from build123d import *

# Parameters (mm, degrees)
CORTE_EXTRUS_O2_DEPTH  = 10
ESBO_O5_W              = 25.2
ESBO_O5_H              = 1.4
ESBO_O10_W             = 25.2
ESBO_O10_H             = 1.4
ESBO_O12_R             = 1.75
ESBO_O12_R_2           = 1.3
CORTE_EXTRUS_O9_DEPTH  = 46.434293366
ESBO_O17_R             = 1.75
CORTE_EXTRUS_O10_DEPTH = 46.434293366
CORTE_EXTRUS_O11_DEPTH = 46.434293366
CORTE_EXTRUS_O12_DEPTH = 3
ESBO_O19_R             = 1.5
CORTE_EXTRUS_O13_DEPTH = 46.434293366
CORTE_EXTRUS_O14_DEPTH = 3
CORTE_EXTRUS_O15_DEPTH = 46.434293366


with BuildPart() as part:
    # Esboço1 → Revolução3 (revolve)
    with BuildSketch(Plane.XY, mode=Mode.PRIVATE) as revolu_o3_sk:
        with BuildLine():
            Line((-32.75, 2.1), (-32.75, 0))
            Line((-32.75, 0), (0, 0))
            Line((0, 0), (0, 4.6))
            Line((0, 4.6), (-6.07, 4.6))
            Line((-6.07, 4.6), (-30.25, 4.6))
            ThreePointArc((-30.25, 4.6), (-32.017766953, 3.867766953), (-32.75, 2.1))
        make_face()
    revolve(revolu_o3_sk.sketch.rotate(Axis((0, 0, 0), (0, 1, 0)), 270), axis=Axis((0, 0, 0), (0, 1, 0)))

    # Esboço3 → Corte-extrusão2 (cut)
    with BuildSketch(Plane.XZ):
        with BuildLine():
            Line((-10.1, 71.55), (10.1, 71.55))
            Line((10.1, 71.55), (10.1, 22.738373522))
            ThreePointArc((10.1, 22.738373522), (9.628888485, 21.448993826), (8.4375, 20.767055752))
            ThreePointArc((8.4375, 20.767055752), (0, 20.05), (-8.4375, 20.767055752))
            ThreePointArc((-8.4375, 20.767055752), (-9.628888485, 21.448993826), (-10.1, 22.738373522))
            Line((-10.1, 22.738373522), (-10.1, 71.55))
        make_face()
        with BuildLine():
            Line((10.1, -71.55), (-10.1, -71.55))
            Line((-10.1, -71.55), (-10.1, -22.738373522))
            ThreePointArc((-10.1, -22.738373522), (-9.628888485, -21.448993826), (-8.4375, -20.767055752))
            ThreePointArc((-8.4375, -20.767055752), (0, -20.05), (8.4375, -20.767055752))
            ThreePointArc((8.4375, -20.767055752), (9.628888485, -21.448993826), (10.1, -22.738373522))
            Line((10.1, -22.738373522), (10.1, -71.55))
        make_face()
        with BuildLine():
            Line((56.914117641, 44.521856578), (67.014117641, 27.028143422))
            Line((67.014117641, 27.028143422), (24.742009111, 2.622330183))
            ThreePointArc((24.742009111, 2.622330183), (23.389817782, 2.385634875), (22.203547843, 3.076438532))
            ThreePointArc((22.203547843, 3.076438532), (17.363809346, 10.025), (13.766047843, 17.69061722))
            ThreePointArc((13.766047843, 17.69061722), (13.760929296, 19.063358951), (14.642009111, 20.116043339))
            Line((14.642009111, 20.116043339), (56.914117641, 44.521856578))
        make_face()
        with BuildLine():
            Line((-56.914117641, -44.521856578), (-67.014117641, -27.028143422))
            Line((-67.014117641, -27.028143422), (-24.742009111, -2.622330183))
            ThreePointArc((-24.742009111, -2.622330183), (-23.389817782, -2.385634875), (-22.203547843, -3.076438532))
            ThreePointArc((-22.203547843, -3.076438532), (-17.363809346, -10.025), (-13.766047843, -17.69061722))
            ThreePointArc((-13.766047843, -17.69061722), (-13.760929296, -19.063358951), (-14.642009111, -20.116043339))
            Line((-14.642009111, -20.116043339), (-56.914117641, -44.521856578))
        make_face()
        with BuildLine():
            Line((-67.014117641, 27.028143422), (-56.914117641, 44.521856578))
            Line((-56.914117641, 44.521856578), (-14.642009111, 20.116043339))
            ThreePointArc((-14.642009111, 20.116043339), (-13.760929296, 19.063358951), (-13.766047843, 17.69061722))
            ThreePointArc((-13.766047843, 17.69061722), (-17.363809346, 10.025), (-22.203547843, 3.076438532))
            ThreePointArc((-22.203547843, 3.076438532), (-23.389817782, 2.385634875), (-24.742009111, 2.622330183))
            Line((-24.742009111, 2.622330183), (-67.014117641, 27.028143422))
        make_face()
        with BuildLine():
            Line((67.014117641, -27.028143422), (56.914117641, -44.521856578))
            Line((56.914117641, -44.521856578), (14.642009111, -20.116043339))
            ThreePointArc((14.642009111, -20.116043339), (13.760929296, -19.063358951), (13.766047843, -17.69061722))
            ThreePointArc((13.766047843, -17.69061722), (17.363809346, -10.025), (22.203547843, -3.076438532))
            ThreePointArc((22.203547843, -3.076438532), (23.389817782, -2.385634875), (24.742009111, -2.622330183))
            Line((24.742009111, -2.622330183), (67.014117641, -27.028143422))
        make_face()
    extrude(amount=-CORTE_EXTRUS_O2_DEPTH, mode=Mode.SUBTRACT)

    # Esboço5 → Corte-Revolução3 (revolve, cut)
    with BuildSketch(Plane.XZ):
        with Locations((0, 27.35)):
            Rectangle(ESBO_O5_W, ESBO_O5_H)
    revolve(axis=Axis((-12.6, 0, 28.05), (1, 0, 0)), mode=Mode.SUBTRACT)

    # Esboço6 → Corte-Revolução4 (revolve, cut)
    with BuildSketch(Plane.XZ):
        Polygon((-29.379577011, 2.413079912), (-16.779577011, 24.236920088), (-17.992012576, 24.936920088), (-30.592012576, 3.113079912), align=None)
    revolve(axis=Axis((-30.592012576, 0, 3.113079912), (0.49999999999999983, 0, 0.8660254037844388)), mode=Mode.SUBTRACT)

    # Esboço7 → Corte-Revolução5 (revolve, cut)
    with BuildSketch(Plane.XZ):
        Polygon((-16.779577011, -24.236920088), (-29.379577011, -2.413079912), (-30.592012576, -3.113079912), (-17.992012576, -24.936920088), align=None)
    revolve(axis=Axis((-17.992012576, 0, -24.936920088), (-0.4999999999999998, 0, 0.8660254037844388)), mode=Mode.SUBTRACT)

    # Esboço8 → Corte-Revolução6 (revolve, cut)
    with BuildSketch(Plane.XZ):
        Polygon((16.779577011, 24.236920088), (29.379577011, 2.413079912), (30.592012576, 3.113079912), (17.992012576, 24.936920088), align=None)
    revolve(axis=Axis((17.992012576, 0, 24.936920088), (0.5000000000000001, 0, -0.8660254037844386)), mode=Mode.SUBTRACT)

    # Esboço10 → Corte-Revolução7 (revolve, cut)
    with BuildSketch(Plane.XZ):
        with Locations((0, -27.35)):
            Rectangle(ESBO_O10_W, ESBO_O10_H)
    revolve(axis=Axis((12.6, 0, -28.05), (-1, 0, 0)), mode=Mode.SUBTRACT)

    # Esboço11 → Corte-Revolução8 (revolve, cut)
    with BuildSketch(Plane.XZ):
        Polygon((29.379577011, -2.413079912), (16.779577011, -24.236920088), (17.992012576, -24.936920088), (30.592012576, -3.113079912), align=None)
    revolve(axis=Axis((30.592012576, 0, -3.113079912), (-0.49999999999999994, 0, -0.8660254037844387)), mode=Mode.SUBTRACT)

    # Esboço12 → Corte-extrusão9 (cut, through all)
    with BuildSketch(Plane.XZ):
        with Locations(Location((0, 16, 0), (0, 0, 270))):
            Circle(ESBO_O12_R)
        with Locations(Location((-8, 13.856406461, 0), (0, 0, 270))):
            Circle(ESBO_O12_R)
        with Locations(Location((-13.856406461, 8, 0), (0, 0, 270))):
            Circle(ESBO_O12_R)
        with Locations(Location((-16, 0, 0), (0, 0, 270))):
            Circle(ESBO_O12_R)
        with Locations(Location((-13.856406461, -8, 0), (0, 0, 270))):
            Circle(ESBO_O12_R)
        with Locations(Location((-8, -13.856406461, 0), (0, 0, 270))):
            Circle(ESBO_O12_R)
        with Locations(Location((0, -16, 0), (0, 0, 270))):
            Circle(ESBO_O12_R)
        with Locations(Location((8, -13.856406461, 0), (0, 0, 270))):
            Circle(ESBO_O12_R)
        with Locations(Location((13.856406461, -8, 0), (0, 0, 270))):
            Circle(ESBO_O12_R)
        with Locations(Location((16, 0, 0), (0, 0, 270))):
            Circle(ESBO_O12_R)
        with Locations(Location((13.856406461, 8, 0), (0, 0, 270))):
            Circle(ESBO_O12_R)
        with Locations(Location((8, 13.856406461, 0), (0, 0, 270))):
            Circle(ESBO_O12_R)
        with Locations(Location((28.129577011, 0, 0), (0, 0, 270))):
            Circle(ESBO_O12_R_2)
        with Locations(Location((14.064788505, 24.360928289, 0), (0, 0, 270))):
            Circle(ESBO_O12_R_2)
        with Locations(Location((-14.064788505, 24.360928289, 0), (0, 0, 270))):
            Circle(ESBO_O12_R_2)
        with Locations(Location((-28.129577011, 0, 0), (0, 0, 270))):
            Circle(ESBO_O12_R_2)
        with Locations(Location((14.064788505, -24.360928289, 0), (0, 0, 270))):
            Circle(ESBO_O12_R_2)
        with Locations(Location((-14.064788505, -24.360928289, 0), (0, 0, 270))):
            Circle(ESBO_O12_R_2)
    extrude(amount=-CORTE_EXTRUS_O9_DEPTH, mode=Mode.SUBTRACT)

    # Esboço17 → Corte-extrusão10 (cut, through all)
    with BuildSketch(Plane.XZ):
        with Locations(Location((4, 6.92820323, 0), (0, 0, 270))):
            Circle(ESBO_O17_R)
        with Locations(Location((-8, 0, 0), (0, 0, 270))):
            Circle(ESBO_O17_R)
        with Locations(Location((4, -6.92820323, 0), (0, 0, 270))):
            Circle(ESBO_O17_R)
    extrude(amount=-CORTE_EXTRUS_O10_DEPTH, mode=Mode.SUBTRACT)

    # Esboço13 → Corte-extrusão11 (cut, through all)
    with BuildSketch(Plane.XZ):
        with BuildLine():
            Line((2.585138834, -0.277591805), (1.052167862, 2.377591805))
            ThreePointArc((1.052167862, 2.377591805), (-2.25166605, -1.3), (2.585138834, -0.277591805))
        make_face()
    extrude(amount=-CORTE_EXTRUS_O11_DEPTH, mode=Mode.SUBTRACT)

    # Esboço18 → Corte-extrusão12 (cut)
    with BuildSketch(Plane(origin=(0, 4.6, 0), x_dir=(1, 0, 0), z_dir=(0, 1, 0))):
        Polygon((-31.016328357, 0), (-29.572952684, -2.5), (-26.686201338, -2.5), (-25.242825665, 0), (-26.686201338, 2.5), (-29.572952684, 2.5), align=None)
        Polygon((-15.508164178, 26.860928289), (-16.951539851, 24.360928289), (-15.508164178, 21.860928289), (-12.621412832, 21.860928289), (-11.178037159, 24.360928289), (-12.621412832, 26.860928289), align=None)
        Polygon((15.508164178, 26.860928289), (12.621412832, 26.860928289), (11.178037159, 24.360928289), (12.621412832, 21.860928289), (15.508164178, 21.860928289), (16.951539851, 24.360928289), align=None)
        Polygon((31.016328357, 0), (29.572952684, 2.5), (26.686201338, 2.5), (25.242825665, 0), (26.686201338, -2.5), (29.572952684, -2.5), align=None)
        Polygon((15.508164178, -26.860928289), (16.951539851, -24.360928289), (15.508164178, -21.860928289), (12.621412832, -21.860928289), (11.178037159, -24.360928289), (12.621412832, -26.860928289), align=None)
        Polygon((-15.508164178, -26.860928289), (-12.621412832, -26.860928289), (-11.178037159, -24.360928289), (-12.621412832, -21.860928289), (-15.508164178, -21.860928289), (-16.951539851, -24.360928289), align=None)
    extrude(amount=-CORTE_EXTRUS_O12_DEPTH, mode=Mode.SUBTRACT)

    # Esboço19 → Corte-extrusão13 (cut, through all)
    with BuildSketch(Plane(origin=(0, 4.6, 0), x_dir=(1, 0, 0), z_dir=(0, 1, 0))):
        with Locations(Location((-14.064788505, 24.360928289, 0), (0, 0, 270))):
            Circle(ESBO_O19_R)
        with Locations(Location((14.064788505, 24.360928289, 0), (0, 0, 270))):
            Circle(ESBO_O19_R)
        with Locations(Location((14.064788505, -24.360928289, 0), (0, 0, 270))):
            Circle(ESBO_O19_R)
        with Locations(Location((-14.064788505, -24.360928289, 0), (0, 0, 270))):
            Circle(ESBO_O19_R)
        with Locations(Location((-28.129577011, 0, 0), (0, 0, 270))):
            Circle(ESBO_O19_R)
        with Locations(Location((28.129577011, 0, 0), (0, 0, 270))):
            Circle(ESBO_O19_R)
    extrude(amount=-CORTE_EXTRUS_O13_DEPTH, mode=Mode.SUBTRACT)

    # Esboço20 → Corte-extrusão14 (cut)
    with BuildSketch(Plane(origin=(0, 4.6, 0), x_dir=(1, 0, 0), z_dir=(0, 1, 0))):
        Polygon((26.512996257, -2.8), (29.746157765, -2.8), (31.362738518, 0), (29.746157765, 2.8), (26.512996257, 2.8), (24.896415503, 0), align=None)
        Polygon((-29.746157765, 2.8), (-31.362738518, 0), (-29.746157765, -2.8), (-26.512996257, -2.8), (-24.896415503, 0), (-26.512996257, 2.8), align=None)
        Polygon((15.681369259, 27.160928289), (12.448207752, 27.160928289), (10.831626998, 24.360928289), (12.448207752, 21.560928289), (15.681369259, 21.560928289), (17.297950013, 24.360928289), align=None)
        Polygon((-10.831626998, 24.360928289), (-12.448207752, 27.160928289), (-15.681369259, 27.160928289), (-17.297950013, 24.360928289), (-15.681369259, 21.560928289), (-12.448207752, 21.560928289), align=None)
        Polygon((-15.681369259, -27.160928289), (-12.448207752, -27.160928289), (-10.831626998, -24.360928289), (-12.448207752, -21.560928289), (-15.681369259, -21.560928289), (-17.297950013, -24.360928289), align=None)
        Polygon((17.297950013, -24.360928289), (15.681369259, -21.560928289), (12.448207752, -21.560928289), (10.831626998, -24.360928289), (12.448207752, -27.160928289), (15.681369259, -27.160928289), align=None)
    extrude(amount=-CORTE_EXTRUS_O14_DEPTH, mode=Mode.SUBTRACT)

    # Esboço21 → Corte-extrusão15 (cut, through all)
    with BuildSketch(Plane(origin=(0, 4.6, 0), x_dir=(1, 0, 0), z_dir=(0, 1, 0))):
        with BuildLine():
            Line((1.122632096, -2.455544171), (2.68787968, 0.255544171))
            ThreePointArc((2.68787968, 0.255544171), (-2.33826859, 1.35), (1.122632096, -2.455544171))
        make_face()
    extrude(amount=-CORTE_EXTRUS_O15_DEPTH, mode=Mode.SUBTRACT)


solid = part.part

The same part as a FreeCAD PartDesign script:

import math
import FreeCAD as App
import Part
import Sketcher

V = App.Vector
Q = App.Units.Quantity


def add_polygon(sketch, points):
    """Adds a closed chain of lines whose ends are joined by coincident constraints."""
    first, n = sketch.GeometryCount, len(points)
    for a, b in zip(points, points[1:] + points[:1]):
        sketch.addGeometry(Part.LineSegment(App.Vector(*a, 0), App.Vector(*b, 0)), False)
    for i in range(n):
        sketch.addConstraint(Sketcher.Constraint("Coincident", first + i, 2, first + (i + 1) % n, 1))

doc = App.newDocument("Part")
body = doc.addObject("PartDesign::Body", "Body")

# Sketch on XY plane
sketch1 = body.newObject("Sketcher::SketchObject", "Sketch")
sketch1.AttachmentSupport = (doc.getObject("XY_Plane"), [""])
sketch1.MapMode = "FlatFace"
sketch1.addGeometry([
    Part.LineSegment(V(-32.8, 2.1, 0), V(-32.8, 0, 0)),  # 0
    Part.LineSegment(V(-32.8, 0, 0), V(0, 0, 0)),  # 1
    Part.LineSegment(V(0, 0, 0), V(0, 4.6, 0)),  # 2
    Part.LineSegment(V(0, 4.6, 0), V(-30.2, 4.6, 0)),  # 3
    Part.ArcOfCircle(Part.Circle(V(-30.2, 2.1, 0), V(0, 0, 1), 2.5), math.radians(90), math.radians(180)),  # 4
], False)
sketch1.addConstraint([
    Sketcher.Constraint("Coincident", 0, 2, 1, 1),
    Sketcher.Constraint("Coincident", 1, 2, 2, 1),
    Sketcher.Constraint("Coincident", 2, 2, 3, 1),
    Sketcher.Constraint("Tangent", 3, 2, 4, 1),
    Sketcher.Constraint("Tangent", 4, 2, 0, 1),
    Sketcher.Constraint("Vertical", 0),
    Sketcher.Constraint("Horizontal", 1),
    Sketcher.Constraint("Vertical", 2),
    Sketcher.Constraint("Horizontal", 3),
    Sketcher.Constraint("Coincident", 1, 2, -1, 1),
    Sketcher.Constraint("Radius", 4, Q("2.5 mm")),
    Sketcher.Constraint("DistanceY", 0, 2, 0, 1, Q("2.1 mm")),
    Sketcher.Constraint("DistanceX", 1, 1, 1, 2, Q("32.75 mm")),
])
revolution = body.newObject("PartDesign::Revolution", "Revolution")
revolution.Profile = sketch1
revolution.ReferenceAxis = (sketch1, ["V_Axis"])
revolution.Angle = 360

# Sketch on XZ plane
sketch2 = body.newObject("Sketcher::SketchObject", "Sketch001")
sketch2.AttachmentSupport = (doc.getObject("XZ_Plane"), [""])
sketch2.MapMode = "FlatFace"
sketch2.addGeometry([
    Part.LineSegment(V(10.1, 71.5, 0), V(-10.1, 71.5, 0)),  # 0
    Part.LineSegment(V(-10.1, 71.5, 0), V(-10.1, 22.7, 0)),  # 1
    Part.ArcOfCircle(Part.Circle(V(-8.1, 22.7, 0), V(0, 0, 1), 2), math.radians(180), math.radians(260)),  # 2
    Part.ArcOfCircle(Part.Circle(V(0, 70.1, 0), V(0, 0, 1), 50), math.radians(-99.72), math.radians(-80.28)),  # 3
    Part.ArcOfCircle(Part.Circle(V(8.1, 22.7, 0), V(0, 0, 1), 2), math.radians(-80), math.radians(0)),  # 4
    Part.LineSegment(V(10.1, 22.7, 0), V(10.1, 71.5, 0)),  # 5
    Part.LineSegment(V(-10.1, -71.5, 0), V(10.1, -71.5, 0)),  # 6
    Part.LineSegment(V(10.1, -71.5, 0), V(10.1, -22.7, 0)),  # 7
    Part.ArcOfCircle(Part.Circle(V(8.1, -22.7, 0), V(0, 0, 1), 2), math.radians(0), math.radians(80)),  # 8
    Part.ArcOfCircle(Part.Circle(V(0, -70.1, 0), V(0, 0, 1), 50), math.radians(80.28), math.radians(99.72)),  # 9
    Part.ArcOfCircle(Part.Circle(V(-8.1, -22.7, 0), V(0, 0, 1), 2), math.radians(100), math.radians(180)),  # 10
    Part.LineSegment(V(-10.1, -22.7, 0), V(-10.1, -71.5, 0)),  # 11
    Part.LineSegment(V(67, 27, 0), V(56.9, 44.5, 0)),  # 12
    Part.LineSegment(V(56.9, 44.5, 0), V(14.6, 20.1, 0)),  # 13
    Part.ArcOfCircle(Part.Circle(V(15.6, 18.4, 0), V(0, 0, 1), 2), math.radians(120), math.radians(200)),  # 14
    Part.ArcOfCircle(Part.Circle(V(60.7, 35, 0), V(0, 0, 1), 50), math.radians(-159.72), math.radians(-140.28)),  # 15
    Part.ArcOfCircle(Part.Circle(V(23.7, 4.4, 0), V(0, 0, 1), 2), math.radians(-140), math.radians(-60)),  # 16
    Part.LineSegment(V(24.7, 2.6, 0), V(67, 27, 0)),  # 17
    Part.LineSegment(V(-67, -27, 0), V(-56.9, -44.5, 0)),  # 18
    Part.LineSegment(V(-56.9, -44.5, 0), V(-14.6, -20.1, 0)),  # 19
    Part.ArcOfCircle(Part.Circle(V(-15.6, -18.4, 0), V(0, 0, 1), 2), math.radians(-60), math.radians(20)),  # 20
    Part.ArcOfCircle(Part.Circle(V(-60.7, -35, 0), V(0, 0, 1), 50), math.radians(20.28), math.radians(39.72)),  # 21
    Part.ArcOfCircle(Part.Circle(V(-23.7, -4.4, 0), V(0, 0, 1), 2), math.radians(40), math.radians(120)),  # 22
    Part.LineSegment(V(-24.7, -2.6, 0), V(-67, -27, 0)),  # 23
    Part.LineSegment(V(-56.9, 44.5, 0), V(-67, 27, 0)),  # 24
    Part.LineSegment(V(-67, 27, 0), V(-24.7, 2.6, 0)),  # 25
    Part.ArcOfCircle(Part.Circle(V(-23.7, 4.4, 0), V(0, 0, 1), 2), math.radians(-120), math.radians(-40)),  # 26
    Part.ArcOfCircle(Part.Circle(V(-60.7, 35, 0), V(0, 0, 1), 50), math.radians(-39.72), math.radians(-20.28)),  # 27
    Part.ArcOfCircle(Part.Circle(V(-15.6, 18.4, 0), V(0, 0, 1), 2), math.radians(-20), math.radians(60)),  # 28
    Part.LineSegment(V(-14.6, 20.1, 0), V(-56.9, 44.5, 0)),  # 29
    Part.LineSegment(V(56.9, -44.5, 0), V(67, -27, 0)),  # 30
    Part.LineSegment(V(67, -27, 0), V(24.7, -2.6, 0)),  # 31
    Part.ArcOfCircle(Part.Circle(V(23.7, -4.4, 0), V(0, 0, 1), 2), math.radians(60), math.radians(140)),  # 32
    Part.ArcOfCircle(Part.Circle(V(60.7, -35, 0), V(0, 0, 1), 50), math.radians(140.28), math.radians(159.72)),  # 33
    Part.ArcOfCircle(Part.Circle(V(15.6, -18.4, 0), V(0, 0, 1), 2), math.radians(160), math.radians(240)),  # 34
    Part.LineSegment(V(14.6, -20.1, 0), V(56.9, -44.5, 0)),  # 35
], False)
sketch2.addConstraint([
    Sketcher.Constraint("Coincident", 0, 2, 1, 1),
    Sketcher.Constraint("Tangent", 1, 2, 2, 1),
    Sketcher.Constraint("Tangent", 2, 2, 3, 1),
    Sketcher.Constraint("Tangent", 3, 2, 4, 1),
    Sketcher.Constraint("Tangent", 4, 2, 5, 1),
    Sketcher.Constraint("Coincident", 5, 2, 0, 1),
    Sketcher.Constraint("Coincident", 6, 2, 7, 1),
    Sketcher.Constraint("Tangent", 7, 2, 8, 1),
    Sketcher.Constraint("Tangent", 8, 2, 9, 1),
    Sketcher.Constraint("Tangent", 9, 2, 10, 1),
    Sketcher.Constraint("Tangent", 10, 2, 11, 1),
    Sketcher.Constraint("Coincident", 11, 2, 6, 1),
    Sketcher.Constraint("Coincident", 12, 2, 13, 1),
    Sketcher.Constraint("Tangent", 13, 2, 14, 1),
    Sketcher.Constraint("Tangent", 14, 2, 15, 1),
    Sketcher.Constraint("Tangent", 15, 2, 16, 1),
    Sketcher.Constraint("Tangent", 16, 2, 17, 1),
    Sketcher.Constraint("Coincident", 17, 2, 12, 1),
    Sketcher.Constraint("Coincident", 18, 2, 19, 1),
    Sketcher.Constraint("Tangent", 19, 2, 20, 1),
    Sketcher.Constraint("Tangent", 20, 2, 21, 1),
    Sketcher.Constraint("Tangent", 21, 2, 22, 1),
    Sketcher.Constraint("Tangent", 22, 2, 23, 1),
    Sketcher.Constraint("Coincident", 23, 2, 18, 1),
    Sketcher.Constraint("Coincident", 24, 2, 25, 1),
    Sketcher.Constraint("Tangent", 25, 2, 26, 1),
    Sketcher.Constraint("Tangent", 26, 2, 27, 1),
    Sketcher.Constraint("Tangent", 27, 2, 28, 1),
    Sketcher.Constraint("Tangent", 28, 2, 29, 1),
    Sketcher.Constraint("Coincident", 29, 2, 24, 1),
    Sketcher.Constraint("Coincident", 30, 2, 31, 1),
    Sketcher.Constraint("Tangent", 31, 2, 32, 1),
    Sketcher.Constraint("Tangent", 32, 2, 33, 1),
    Sketcher.Constraint("Tangent", 33, 2, 34, 1),
    Sketcher.Constraint("Tangent", 34, 2, 35, 1),
    Sketcher.Constraint("Coincident", 35, 2, 30, 1),
    Sketcher.Constraint("Horizontal", 0),
    Sketcher.Constraint("Vertical", 1),
    Sketcher.Constraint("Vertical", 5),
    Sketcher.Constraint("Horizontal", 6),
    Sketcher.Constraint("Vertical", 7),
    Sketcher.Constraint("Vertical", 11),
    Sketcher.Constraint("Equal", 2, 4),
    Sketcher.Constraint("Equal", 4, 8),
    Sketcher.Constraint("Equal", 3, 9),
    Sketcher.Constraint("Equal", 8, 10),
    Sketcher.Constraint("Equal", 10, 14),
    Sketcher.Constraint("Equal", 9, 15),
    Sketcher.Constraint("Equal", 14, 16),
    Sketcher.Constraint("Equal", 16, 20),
    Sketcher.Constraint("Equal", 15, 21),
    Sketcher.Constraint("Equal", 20, 22),
    Sketcher.Constraint("Equal", 22, 26),
    Sketcher.Constraint("Equal", 21, 27),
    Sketcher.Constraint("Equal", 26, 28),
    Sketcher.Constraint("Equal", 28, 32),
    Sketcher.Constraint("Equal", 27, 33),
    Sketcher.Constraint("Equal", 32, 34),
    Sketcher.Constraint("Symmetric", 2, 3, 8, 3, -1, 1),
    Sketcher.Constraint("Symmetric", 4, 3, 10, 3, -1, 1),
    Sketcher.Constraint("Symmetric", 14, 3, 20, 3, -1, 1),
    Sketcher.Constraint("Symmetric", 16, 3, 22, 3, -1, 1),
    Sketcher.Constraint("Symmetric", 26, 3, 32, 3, -1, 1),
    Sketcher.Constraint("Symmetric", 28, 3, 34, 3, -1, 1),
    Sketcher.Constraint("Symmetric", 12, 2, 18, 2, -1, 1),
    Sketcher.Constraint("Symmetric", 17, 2, 23, 2, -1, 1),
    Sketcher.Constraint("Symmetric", 24, 2, 30, 2, -1, 1),
    Sketcher.Constraint("Symmetric", 29, 2, 35, 2, -1, 1),
    Sketcher.Constraint("Symmetric", 2, 3, 4, 3, -2),
    Sketcher.Constraint("Symmetric", 16, 3, 26, 3, -2),
    Sketcher.Constraint("Symmetric", 14, 3, 28, 3, -2),
    Sketcher.Constraint("Symmetric", 17, 2, 24, 2, -2),
    Sketcher.Constraint("Symmetric", 12, 2, 29, 2, -2),
    Sketcher.Constraint("Perpendicular", 12, 13),
    Sketcher.Constraint("Parallel", 13, 17),
    Sketcher.Constraint("Equal", 5, 7),
    Sketcher.Constraint("Equal", 13, 17),
    Sketcher.Constraint("Radius", 2, Q("2 mm")),
    Sketcher.Constraint("Radius", 3, Q("50 mm")),
    Sketcher.Constraint("Angle", 12, Q("120 deg")),
    Sketcher.Constraint("DistanceX", 0, 2, 0, 1, Q("20.2 mm")),
    Sketcher.Constraint("Distance", 12, Q("20.2 mm")),
    Sketcher.Constraint("DistanceY", 9, 3, 3, 3, Q("140.1 mm")),
    Sketcher.Constraint("DistanceY", 3, 3, 0, 2, Q("1.5 mm")),
    Sketcher.Constraint("DistanceY", -1, 1, 15, 3, Q("35.025 mm")),
    Sketcher.Constraint("DistanceX", -1, 1, 14, 3, Q("15.642009 mm")),
    Sketcher.Constraint("DistanceX", 12, 2, 15, 3, Q("3.750962 mm")),
])
pocket1 = body.newObject("PartDesign::Pocket", "Pocket")
pocket1.Profile = sketch2
pocket1.Length = 10

# Sketch on XZ plane
sketch3 = body.newObject("Sketcher::SketchObject", "Sketch002")
sketch3.AttachmentSupport = (doc.getObject("XZ_Plane"), [""])
sketch3.MapMode = "FlatFace"
add_polygon(sketch3, [(-12.6, 28.1), (-12.6, 26.6), (12.6, 26.6), (12.6, 28.1)])  # lines 0-3
sketch3.addGeometry(Part.LineSegment(V(-12.6, 28.1, 0), V(12.6, 28.1, 0)), True)  # axis
sketch3.addConstraint([
    Sketcher.Constraint("Vertical", 0),
    Sketcher.Constraint("Horizontal", 1),
    Sketcher.Constraint("Vertical", 2),
    Sketcher.Constraint("Horizontal", 3),
    Sketcher.Constraint("Horizontal", 4),
    Sketcher.Constraint("Coincident", 4, 1, 3, 2),
    Sketcher.Constraint("Vertical", 1, 2, 4, 2),
    Sketcher.Constraint("DistanceX", 1, 1, 1, 2, Q("25.2 mm")),
    Sketcher.Constraint("DistanceY", 0, 2, 0, 1, Q("1.4 mm")),
    Sketcher.Constraint("DistanceX", 0, 2, -1, 1, Q("12.6 mm")),
    Sketcher.Constraint("DistanceY", -1, 1, 0, 2, Q("26.65 mm")),
])
groove = body.newObject("PartDesign::Groove", "Groove")
groove.Profile = sketch3
groove.ReferenceAxis = (sketch3, ["Axis0"])
groove.Angle = 360

# Sketch on XZ plane
sketch4 = body.newObject("Sketcher::SketchObject", "Sketch003")
sketch4.AttachmentSupport = (doc.getObject("XZ_Plane"), [""])
sketch4.MapMode = "FlatFace"
add_polygon(sketch4, [(-29.4, 2.4), (-16.8, 24.2), (-18, 24.9), (-30.6, 3.1)])  # lines 0-3
sketch4.addGeometry(Part.LineSegment(V(-30.6, 3.1, 0), V(-18, 24.9, 0)), True)  # axis
sketch4.addConstraint([
    Sketcher.Constraint("Coincident", 4, 1, 2, 2),
    Sketcher.Constraint("Coincident", 4, 2, 1, 2),
    Sketcher.Constraint("Perpendicular", 0, 1),
    Sketcher.Constraint("Perpendicular", 1, 2),
    Sketcher.Constraint("Perpendicular", 2, 3),
    Sketcher.Constraint("Angle", 0, Q("60 deg")),
    Sketcher.Constraint("Distance", 0, Q("25.2 mm")),
    Sketcher.Constraint("Distance", 1, Q("1.4 mm")),
    Sketcher.Constraint("DistanceY", -1, 1, 0, 2, Q("24.23692 mm")),
    Sketcher.Constraint("DistanceX", 0, 2, -1, 1, Q("16.779577 mm")),
])
groove2 = body.newObject("PartDesign::Groove", "Groove001")
groove2.Profile = sketch4
groove2.ReferenceAxis = (sketch4, ["Axis0"])
groove2.Angle = 360

# Sketch on XZ plane
sketch5 = body.newObject("Sketcher::SketchObject", "Sketch004")
sketch5.AttachmentSupport = (doc.getObject("XZ_Plane"), [""])
sketch5.MapMode = "FlatFace"
add_polygon(sketch5, [(-16.8, -24.2), (-29.4, -2.4), (-30.6, -3.1), (-18, -24.9)])  # lines 0-3
sketch5.addGeometry(Part.LineSegment(V(-18, -24.9, 0), V(-30.6, -3.1, 0)), True)  # axis
sketch5.addConstraint([
    Sketcher.Constraint("Coincident", 4, 1, 2, 2),
    Sketcher.Constraint("Coincident", 4, 2, 1, 2),
    Sketcher.Constraint("Perpendicular", 0, 1),
    Sketcher.Constraint("Perpendicular", 1, 2),
    Sketcher.Constraint("Perpendicular", 2, 3),
    Sketcher.Constraint("Angle", 0, Q("120 deg")),
    Sketcher.Constraint("Distance", 0, Q("25.2 mm")),
    Sketcher.Constraint("Distance", 1, Q("1.4 mm")),
    Sketcher.Constraint("DistanceY", 0, 2, -1, 1, Q("2.41308 mm")),
    Sketcher.Constraint("DistanceX", 0, 2, -1, 1, Q("29.379577 mm")),
])
groove3 = body.newObject("PartDesign::Groove", "Groove002")
groove3.Profile = sketch5
groove3.ReferenceAxis = (sketch5, ["Axis0"])
groove3.Angle = 360

# Sketch on XZ plane
sketch6 = body.newObject("Sketcher::SketchObject", "Sketch005")
sketch6.AttachmentSupport = (doc.getObject("XZ_Plane"), [""])
sketch6.MapMode = "FlatFace"
add_polygon(sketch6, [(16.8, 24.2), (29.4, 2.4), (30.6, 3.1), (18, 24.9)])  # lines 0-3
sketch6.addGeometry(Part.LineSegment(V(18, 24.9, 0), V(30.6, 3.1, 0)), True)  # axis
sketch6.addConstraint([
    Sketcher.Constraint("Coincident", 4, 1, 2, 2),
    Sketcher.Constraint("Coincident", 4, 2, 1, 2),
    Sketcher.Constraint("Perpendicular", 0, 1),
    Sketcher.Constraint("Perpendicular", 1, 2),
    Sketcher.Constraint("Perpendicular", 2, 3),
    Sketcher.Constraint("Angle", 0, Q("-60 deg")),
    Sketcher.Constraint("Distance", 0, Q("25.2 mm")),
    Sketcher.Constraint("Distance", 1, Q("1.4 mm")),
    Sketcher.Constraint("DistanceY", -1, 1, 0, 2, Q("2.41308 mm")),
    Sketcher.Constraint("DistanceX", -1, 1, 0, 2, Q("29.379577 mm")),
])
groove4 = body.newObject("PartDesign::Groove", "Groove003")
groove4.Profile = sketch6
groove4.ReferenceAxis = (sketch6, ["Axis0"])
groove4.Angle = 360

# Sketch on XZ plane
sketch7 = body.newObject("Sketcher::SketchObject", "Sketch006")
sketch7.AttachmentSupport = (doc.getObject("XZ_Plane"), [""])
sketch7.MapMode = "FlatFace"
add_polygon(sketch7, [(-12.6, -26.6), (-12.6, -28.1), (12.6, -28.1), (12.6, -26.6)])  # lines 0-3
sketch7.addGeometry(Part.LineSegment(V(12.6, -28.1, 0), V(-12.6, -28.1, 0)), True)  # axis
sketch7.addConstraint([
    Sketcher.Constraint("Vertical", 0),
    Sketcher.Constraint("Horizontal", 1),
    Sketcher.Constraint("Vertical", 2),
    Sketcher.Constraint("Horizontal", 3),
    Sketcher.Constraint("Horizontal", 4),
    Sketcher.Constraint("Coincident", 4, 1, 1, 2),
    Sketcher.Constraint("Vertical", 3, 2, 4, 2),
    Sketcher.Constraint("DistanceX", 1, 1, 1, 2, Q("25.2 mm")),
    Sketcher.Constraint("DistanceY", 0, 2, 0, 1, Q("1.4 mm")),
    Sketcher.Constraint("DistanceX", 0, 2, -1, 1, Q("12.6 mm")),
    Sketcher.Constraint("DistanceY", 0, 2, -1, 1, Q("28.05 mm")),
])
groove5 = body.newObject("PartDesign::Groove", "Groove004")
groove5.Profile = sketch7
groove5.ReferenceAxis = (sketch7, ["Axis0"])
groove5.Angle = 360

# Sketch on XZ plane
sketch8 = body.newObject("Sketcher::SketchObject", "Sketch007")
sketch8.AttachmentSupport = (doc.getObject("XZ_Plane"), [""])
sketch8.MapMode = "FlatFace"
add_polygon(sketch8, [(29.4, -2.4), (16.8, -24.2), (18, -24.9), (30.6, -3.1)])  # lines 0-3
sketch8.addGeometry(Part.LineSegment(V(30.6, -3.1, 0), V(18, -24.9, 0)), True)  # axis
sketch8.addConstraint([
    Sketcher.Constraint("Coincident", 4, 1, 2, 2),
    Sketcher.Constraint("Coincident", 4, 2, 1, 2),
    Sketcher.Constraint("Perpendicular", 0, 1),
    Sketcher.Constraint("Perpendicular", 1, 2),
    Sketcher.Constraint("Perpendicular", 2, 3),
    Sketcher.Constraint("Angle", 0, Q("-120 deg")),
    Sketcher.Constraint("Distance", 0, Q("25.2 mm")),
    Sketcher.Constraint("Distance", 1, Q("1.4 mm")),
    Sketcher.Constraint("DistanceY", 0, 2, -1, 1, Q("24.23692 mm")),
    Sketcher.Constraint("DistanceX", -1, 1, 0, 2, Q("16.779577 mm")),
])
groove6 = body.newObject("PartDesign::Groove", "Groove005")
groove6.Profile = sketch8
groove6.ReferenceAxis = (sketch8, ["Axis0"])
groove6.Angle = 360

# Sketch on XZ plane
sketch9 = body.newObject("Sketcher::SketchObject", "Sketch008")
sketch9.AttachmentSupport = (doc.getObject("XZ_Plane"), [""])
sketch9.MapMode = "FlatFace"
sketch9.addGeometry([
    Part.Circle(V(0, 16, 0), V(0, 0, 1), 1.8),  # 0
    Part.Circle(V(-8, 13.9, 0), V(0, 0, 1), 1.8),  # 1
    Part.Circle(V(-13.9, 8, 0), V(0, 0, 1), 1.8),  # 2
    Part.Circle(V(-16, 0, 0), V(0, 0, 1), 1.8),  # 3
    Part.Circle(V(-13.9, -8, 0), V(0, 0, 1), 1.8),  # 4
    Part.Circle(V(-8, -13.9, 0), V(0, 0, 1), 1.8),  # 5
    Part.Circle(V(0, -16, 0), V(0, 0, 1), 1.8),  # 6
    Part.Circle(V(8, -13.9, 0), V(0, 0, 1), 1.8),  # 7
    Part.Circle(V(13.9, -8, 0), V(0, 0, 1), 1.8),  # 8
    Part.Circle(V(16, 0, 0), V(0, 0, 1), 1.8),  # 9
    Part.Circle(V(13.9, 8, 0), V(0, 0, 1), 1.8),  # 10
    Part.Circle(V(8, 13.9, 0), V(0, 0, 1), 1.8),  # 11
    Part.Circle(V(28.1, 0, 0), V(0, 0, 1), 1.3),  # 12
    Part.Circle(V(14.1, 24.4, 0), V(0, 0, 1), 1.3),  # 13
    Part.Circle(V(-14.1, 24.4, 0), V(0, 0, 1), 1.3),  # 14
    Part.Circle(V(-28.1, 0, 0), V(0, 0, 1), 1.3),  # 15
    Part.Circle(V(14.1, -24.4, 0), V(0, 0, 1), 1.3),  # 16
    Part.Circle(V(-14.1, -24.4, 0), V(0, 0, 1), 1.3),  # 17
], False)
sketch9.addConstraint([
    Sketcher.Constraint("Equal", 0, 1),
    Sketcher.Constraint("Equal", 1, 2),
    Sketcher.Constraint("Equal", 2, 3),
    Sketcher.Constraint("Equal", 3, 4),
    Sketcher.Constraint("Equal", 4, 5),
    Sketcher.Constraint("Equal", 5, 6),
    Sketcher.Constraint("Equal", 6, 7),
    Sketcher.Constraint("Equal", 7, 8),
    Sketcher.Constraint("Equal", 8, 9),
    Sketcher.Constraint("Equal", 9, 10),
    Sketcher.Constraint("Equal", 10, 11),
    Sketcher.Constraint("Equal", 12, 13),
    Sketcher.Constraint("Equal", 13, 14),
    Sketcher.Constraint("Equal", 14, 15),
    Sketcher.Constraint("Equal", 15, 16),
    Sketcher.Constraint("Equal", 16, 17),
    Sketcher.Constraint("Symmetric", 0, 3, 6, 3, -1, 1),
    Sketcher.Constraint("Symmetric", 1, 3, 7, 3, -1, 1),
    Sketcher.Constraint("Symmetric", 2, 3, 8, 3, -1, 1),
    Sketcher.Constraint("Symmetric", 3, 3, 9, 3, -1, 1),
    Sketcher.Constraint("Symmetric", 4, 3, 10, 3, -1, 1),
    Sketcher.Constraint("Symmetric", 5, 3, 11, 3, -1, 1),
    Sketcher.Constraint("Symmetric", 12, 3, 15, 3, -1, 1),
    Sketcher.Constraint("Symmetric", 14, 3, 16, 3, -1, 1),
    Sketcher.Constraint("Symmetric", 13, 3, 17, 3, -1, 1),
    Sketcher.Constraint("Symmetric", 5, 3, 7, 3, -2),
    Sketcher.Constraint("Symmetric", 4, 3, 8, 3, -2),
    Sketcher.Constraint("Symmetric", 13, 3, 14, 3, -2),
    Sketcher.Constraint("PointOnObject", 0, 3, -2),
    Sketcher.Constraint("PointOnObject", 3, 3, -1),
    Sketcher.Constraint("PointOnObject", 12, 3, -1),
    Sketcher.Constraint("Diameter", 0, Q("3.5 mm")),
    Sketcher.Constraint("Diameter", 12, Q("2.6 mm")),
    Sketcher.Constraint("DistanceY", -1, 1, 0, 3, Q("16 mm")),
    Sketcher.Constraint("DistanceX", 1, 3, -1, 1, Q("8 mm")),
    Sketcher.Constraint("DistanceY", -1, 1, 2, 3, Q("8 mm")),
    Sketcher.Constraint("DistanceX", 3, 3, -1, 1, Q("16 mm")),
    Sketcher.Constraint("DistanceX", -1, 1, 13, 3, Q("14.064789 mm")),
    Sketcher.Constraint("DistanceY", -1, 1, 13, 3, Q("24.360928 mm")),
    Sketcher.Constraint("DistanceX", 8, 3, 12, 3, Q("14.273171 mm")),
    Sketcher.Constraint("DistanceY", 11, 3, 13, 3, Q("10.504522 mm")),
    Sketcher.Constraint("DistanceX", 2, 3, -1, 1, Q("13.856406 mm")),
])
pocket2 = body.newObject("PartDesign::Pocket", "Pocket001")
pocket2.Profile = sketch9
pocket2.Type = "ThroughAll"

# Sketch on XZ plane
sketch10 = body.newObject("Sketcher::SketchObject", "Sketch009")
sketch10.AttachmentSupport = (doc.getObject("XZ_Plane"), [""])
sketch10.MapMode = "FlatFace"
sketch10.addGeometry([
    Part.Circle(V(4, 6.9, 0), V(0, 0, 1), 1.8),
    Part.Circle(V(-8, 0, 0), V(0, 0, 1), 1.8),
    Part.Circle(V(4, -6.9, 0), V(0, 0, 1), 1.8),
], False)
sketch10.addConstraint([
    Sketcher.Constraint("Equal", 0, 1),
    Sketcher.Constraint("Equal", 1, 2),
    Sketcher.Constraint("Symmetric", 0, 3, 2, 3, -1),
    Sketcher.Constraint("PointOnObject", 1, 3, -1),
    Sketcher.Constraint("Diameter", 0, Q("3.5 mm")),
    Sketcher.Constraint("DistanceX", -1, 1, 0, 3, Q("4 mm")),
    Sketcher.Constraint("DistanceX", 1, 3, -1, 1, Q("8 mm")),
    Sketcher.Constraint("DistanceY", -1, 1, 0, 3, Q("6.928203 mm")),
])
pocket3 = body.newObject("PartDesign::Pocket", "Pocket002")
pocket3.Profile = sketch10
pocket3.Type = "ThroughAll"

# Sketch on XZ plane
sketch11 = body.newObject("Sketcher::SketchObject", "Sketch010")
sketch11.AttachmentSupport = (doc.getObject("XZ_Plane"), [""])
sketch11.MapMode = "FlatFace"
sketch11.addGeometry([
    Part.LineSegment(V(2.6, -0.3, 0), V(1.1, 2.4, 0)),
    Part.ArcOfCircle(Part.Circle(V(0, 0, 0), V(0, 0, 1), 2.6), math.radians(66), math.radians(354)),
], False)
sketch11.addConstraint([
    Sketcher.Constraint("Coincident", 0, 1, 1, 2),
    Sketcher.Constraint("Coincident", 1, 1, 0, 2),
    Sketcher.Constraint("Coincident", 1, 3, -1, 1),
    Sketcher.Constraint("Radius", 1, Q("2.6 mm")),
    Sketcher.Constraint("Angle", 0, Q("120 deg")),
    Sketcher.Constraint("Distance", 0, Q("3.065942 mm")),
])
pocket4 = body.newObject("PartDesign::Pocket", "Pocket003")
pocket4.Profile = sketch11
pocket4.Type = "ThroughAll"

# Sketch on XZ plane
sketch12 = body.newObject("Sketcher::SketchObject", "Sketch011")
sketch12.AttachmentSupport = (doc.getObject("XZ_Plane"), [""])
sketch12.MapMode = "FlatFace"
sketch12.AttachmentOffset = App.Placement(V(0, 0, -4.6), App.Rotation())
add_polygon(sketch12, [(-31, 0), (-29.6, 2.5), (-26.7, 2.5), (-25.2, 0), (-26.7, -2.5), (-29.6, -2.5)])  # lines 0-5
add_polygon(sketch12, [(-15.5, -26.9), (-17, -24.4), (-15.5, -21.9), (-12.6, -21.9), (-11.2, -24.4), (-12.6, -26.9)])  # lines 6-11
add_polygon(sketch12, [(15.5, -26.9), (12.6, -26.9), (11.2, -24.4), (12.6, -21.9), (15.5, -21.9), (17, -24.4)])  # lines 12-17
add_polygon(sketch12, [(31, 0), (29.6, -2.5), (26.7, -2.5), (25.2, 0), (26.7, 2.5), (29.6, 2.5)])  # lines 18-23
add_polygon(sketch12, [(15.5, 26.9), (17, 24.4), (15.5, 21.9), (12.6, 21.9), (11.2, 24.4), (12.6, 26.9)])  # lines 24-29
add_polygon(sketch12, [(-15.5, 26.9), (-12.6, 26.9), (-11.2, 24.4), (-12.6, 21.9), (-15.5, 21.9), (-17, 24.4)])  # lines 30-35
sketch12.addConstraint([
    Sketcher.Constraint("Horizontal", 1),
    Sketcher.Constraint("Horizontal", 4),
    Sketcher.Constraint("Horizontal", 8),
    Sketcher.Constraint("Horizontal", 11),
    Sketcher.Constraint("Horizontal", 12),
    Sketcher.Constraint("Horizontal", 15),
    Sketcher.Constraint("Horizontal", 19),
    Sketcher.Constraint("Horizontal", 22),
    Sketcher.Constraint("Horizontal", 26),
    Sketcher.Constraint("Horizontal", 29),
    Sketcher.Constraint("Horizontal", 30),
    Sketcher.Constraint("Horizontal", 33),
    Sketcher.Constraint("Symmetric", 0, 2, 18, 2, -1, 1),
    Sketcher.Constraint("Symmetric", 2, 2, 20, 2, -1, 1),
    Sketcher.Constraint("Symmetric", 3, 2, 21, 2, -1, 1),
    Sketcher.Constraint("Symmetric", 5, 2, 23, 2, -1, 1),
    Sketcher.Constraint("Symmetric", 6, 2, 24, 2, -1, 1),
    Sketcher.Constraint("Symmetric", 7, 2, 25, 2, -1, 1),
    Sketcher.Constraint("Symmetric", 9, 2, 27, 2, -1, 1),
    Sketcher.Constraint("Symmetric", 10, 2, 28, 2, -1, 1),
    Sketcher.Constraint("Symmetric", 12, 2, 30, 2, -1, 1),
    Sketcher.Constraint("Symmetric", 13, 2, 31, 2, -1, 1),
    Sketcher.Constraint("Symmetric", 14, 2, 32, 2, -1, 1),
    Sketcher.Constraint("Symmetric", 16, 2, 34, 2, -1, 1),
    Sketcher.Constraint("Symmetric", 10, 2, 12, 2, -2),
    Sketcher.Constraint("Symmetric", 9, 2, 13, 2, -2),
    Sketcher.Constraint("Symmetric", 8, 2, 14, 2, -2),
    Sketcher.Constraint("Symmetric", 6, 2, 16, 2, -2),
    Sketcher.Constraint("Symmetric", 4, 2, 18, 2, -2),
    Sketcher.Constraint("PointOnObject", 2, 2, -1),
    Sketcher.Constraint("PointOnObject", 5, 2, -1),
    Sketcher.Constraint("Parallel", 0, 3),
    Sketcher.Constraint("Parallel", 2, 5),
    Sketcher.Constraint("Parallel", 5, 6),
    Sketcher.Constraint("Parallel", 3, 7),
    Sketcher.Constraint("Parallel", 6, 9),
    Sketcher.Constraint("Parallel", 7, 10),
    Sketcher.Constraint("Parallel", 13, 16),
    Sketcher.Constraint("Parallel", 14, 17),
    Sketcher.Constraint("Parallel", 16, 20),
    Sketcher.Constraint("Parallel", 20, 23),
    Sketcher.Constraint("Parallel", 23, 24),
    Sketcher.Constraint("Parallel", 24, 27),
    Sketcher.Constraint("Parallel", 31, 34),
    Sketcher.Constraint("Parallel", 32, 35),
    Sketcher.Constraint("Horizontal", 6, 2, 9, 2),
    Sketcher.Constraint("Vertical", 8, 2, 10, 2),
    Sketcher.Constraint("Equal", 4, 8),
    Sketcher.Constraint("Equal", 5, 6),
    Sketcher.Constraint("Angle", 0, Q("60 deg")),
    Sketcher.Constraint("DistanceY", 3, 2, 1, 2, Q("5 mm")),
    Sketcher.Constraint("DistanceX", 1, 1, 1, 2, Q("2.886751 mm")),
    Sketcher.Constraint("DistanceX", 1, 2, -1, 1, Q("26.686201 mm")),
    Sketcher.Constraint("DistanceX", 7, 2, 13, 2, Q("26.686201 mm")),
    Sketcher.Constraint("DistanceY", 6, 2, -1, 1, Q("24.360928 mm")),
])
pocket5 = body.newObject("PartDesign::Pocket", "Pocket004")
pocket5.Profile = sketch12
pocket5.Length = 3
pocket5.Reversed = True

# Sketch on XZ plane
sketch13 = body.newObject("Sketcher::SketchObject", "Sketch012")
sketch13.AttachmentSupport = (doc.getObject("XZ_Plane"), [""])
sketch13.MapMode = "FlatFace"
sketch13.AttachmentOffset = App.Placement(V(0, 0, -4.6), App.Rotation())
sketch13.addGeometry([
    Part.Circle(V(-14.1, -24.4, 0), V(0, 0, 1), 1.5),  # 0
    Part.Circle(V(14.1, -24.4, 0), V(0, 0, 1), 1.5),  # 1
    Part.Circle(V(14.1, 24.4, 0), V(0, 0, 1), 1.5),  # 2
    Part.Circle(V(-14.1, 24.4, 0), V(0, 0, 1), 1.5),  # 3
    Part.Circle(V(-28.1, 0, 0), V(0, 0, 1), 1.5),  # 4
    Part.Circle(V(28.1, 0, 0), V(0, 0, 1), 1.5),  # 5
], False)
sketch13.addConstraint([
    Sketcher.Constraint("Equal", 0, 1),
    Sketcher.Constraint("Equal", 1, 2),
    Sketcher.Constraint("Equal", 2, 3),
    Sketcher.Constraint("Equal", 3, 4),
    Sketcher.Constraint("Equal", 4, 5),
    Sketcher.Constraint("Symmetric", 0, 3, 2, 3, -1, 1),
    Sketcher.Constraint("Symmetric", 1, 3, 3, 3, -1, 1),
    Sketcher.Constraint("Symmetric", 4, 3, 5, 3, -1, 1),
    Sketcher.Constraint("Symmetric", 0, 3, 1, 3, -2),
    Sketcher.Constraint("PointOnObject", 4, 3, -1),
    Sketcher.Constraint("Diameter", 0, Q("3 mm")),
    Sketcher.Constraint("DistanceX", 0, 3, -1, 1, Q("14.064789 mm")),
    Sketcher.Constraint("DistanceY", 0, 3, -1, 1, Q("24.360928 mm")),
    Sketcher.Constraint("DistanceX", 4, 3, 0, 3, Q("14.064789 mm")),
])
pocket6 = body.newObject("PartDesign::Pocket", "Pocket005")
pocket6.Profile = sketch13
pocket6.Type = "ThroughAll"
pocket6.Reversed = True

# Sketch on XZ plane
sketch14 = body.newObject("Sketcher::SketchObject", "Sketch013")
sketch14.AttachmentSupport = (doc.getObject("XZ_Plane"), [""])
sketch14.MapMode = "FlatFace"
sketch14.AttachmentOffset = App.Placement(V(0, 0, -4.6), App.Rotation())
add_polygon(sketch14, [(26.5, 2.8), (29.7, 2.8), (31.4, 0), (29.7, -2.8), (26.5, -2.8), (24.9, 0)])  # lines 0-5
add_polygon(sketch14, [(-29.7, -2.8), (-31.4, 0), (-29.7, 2.8), (-26.5, 2.8), (-24.9, 0), (-26.5, -2.8)])  # lines 6-11
add_polygon(sketch14, [(15.7, -27.2), (12.4, -27.2), (10.8, -24.4), (12.4, -21.6), (15.7, -21.6), (17.3, -24.4)])  # lines 12-17
add_polygon(sketch14, [(-10.8, -24.4), (-12.4, -27.2), (-15.7, -27.2), (-17.3, -24.4), (-15.7, -21.6), (-12.4, -21.6)])  # lines 18-23
add_polygon(sketch14, [(-15.7, 27.2), (-12.4, 27.2), (-10.8, 24.4), (-12.4, 21.6), (-15.7, 21.6), (-17.3, 24.4)])  # lines 24-29
add_polygon(sketch14, [(17.3, 24.4), (15.7, 21.6), (12.4, 21.6), (10.8, 24.4), (12.4, 27.2), (15.7, 27.2)])  # lines 30-35
sketch14.addConstraint([
    Sketcher.Constraint("Horizontal", 0),
    Sketcher.Constraint("Horizontal", 3),
    Sketcher.Constraint("Horizontal", 8),
    Sketcher.Constraint("Horizontal", 11),
    Sketcher.Constraint("Horizontal", 12),
    Sketcher.Constraint("Horizontal", 15),
    Sketcher.Constraint("Horizontal", 19),
    Sketcher.Constraint("Horizontal", 22),
    Sketcher.Constraint("Horizontal", 24),
    Sketcher.Constraint("Horizontal", 27),
    Sketcher.Constraint("Horizontal", 31),
    Sketcher.Constraint("Horizontal", 34),
    Sketcher.Constraint("Symmetric", 1, 2, 6, 2, -1, 1),
    Sketcher.Constraint("Symmetric", 2, 2, 7, 2, -1, 1),
    Sketcher.Constraint("Symmetric", 4, 2, 9, 2, -1, 1),
    Sketcher.Constraint("Symmetric", 5, 2, 10, 2, -1, 1),
    Sketcher.Constraint("Symmetric", 12, 2, 24, 2, -1, 1),
    Sketcher.Constraint("Symmetric", 13, 2, 25, 2, -1, 1),
    Sketcher.Constraint("Symmetric", 14, 2, 26, 2, -1, 1),
    Sketcher.Constraint("Symmetric", 16, 2, 28, 2, -1, 1),
    Sketcher.Constraint("Symmetric", 21, 2, 30, 2, -1, 1),
    Sketcher.Constraint("Symmetric", 23, 2, 32, 2, -1, 1),
    Sketcher.Constraint("Symmetric", 18, 2, 33, 2, -1, 1),
    Sketcher.Constraint("Symmetric", 20, 2, 35, 2, -1, 1),
    Sketcher.Constraint("Symmetric", 0, 2, 7, 2, -2),
    Sketcher.Constraint("Symmetric", 12, 2, 18, 2, -2),
    Sketcher.Constraint("Symmetric", 16, 2, 20, 2, -2),
    Sketcher.Constraint("Symmetric", 15, 2, 21, 2, -2),
    Sketcher.Constraint("Symmetric", 13, 2, 23, 2, -2),
    Sketcher.Constraint("PointOnObject", 1, 2, -1),
    Sketcher.Constraint("PointOnObject", 4, 2, -1),
    Sketcher.Constraint("Parallel", 1, 4),
    Sketcher.Constraint("Parallel", 2, 5),
    Sketcher.Constraint("Parallel", 4, 6),
    Sketcher.Constraint("Parallel", 6, 9),
    Sketcher.Constraint("Parallel", 9, 13),
    Sketcher.Constraint("Parallel", 10, 14),
    Sketcher.Constraint("Parallel", 13, 16),
    Sketcher.Constraint("Parallel", 14, 17),
    Sketcher.Constraint("Parallel", 16, 20),
    Sketcher.Constraint("Parallel", 20, 23),
    Sketcher.Constraint("Parallel", 25, 28),
    Sketcher.Constraint("Parallel", 26, 29),
    Sketcher.Constraint("Parallel", 28, 32),
    Sketcher.Constraint("Parallel", 32, 35),
    Sketcher.Constraint("Horizontal", 13, 2, 16, 2),
    Sketcher.Constraint("Vertical", 12, 2, 14, 2),
    Sketcher.Constraint("Equal", 11, 12),
    Sketcher.Constraint("Equal", 10, 13),
    Sketcher.Constraint("Angle", 1, Q("-60 deg")),
    Sketcher.Constraint("DistanceY", -1, 1, 0, 2, Q("2.8 mm")),
    Sketcher.Constraint("DistanceX", 0, 1, 0, 2, Q("3.233162 mm")),
    Sketcher.Constraint("DistanceX", -1, 1, 1, 2, Q("31.362739 mm")),
    Sketcher.Constraint("DistanceY", 12, 2, -1, 1, Q("27.160928 mm")),
    Sketcher.Constraint("DistanceX", -1, 1, 15, 2, Q("15.681369 mm")),
])
pocket7 = body.newObject("PartDesign::Pocket", "Pocket006")
pocket7.Profile = sketch14
pocket7.Length = 3
pocket7.Reversed = True

# Sketch on XZ plane
sketch15 = body.newObject("Sketcher::SketchObject", "Sketch014")
sketch15.AttachmentSupport = (doc.getObject("XZ_Plane"), [""])
sketch15.MapMode = "FlatFace"
sketch15.AttachmentOffset = App.Placement(V(0, 0, -4.6), App.Rotation())
sketch15.addGeometry([
    Part.LineSegment(V(1.1, 2.5, 0), V(2.7, -0.3, 0)),
    Part.ArcOfCircle(Part.Circle(V(0, 0, 0), V(0, 0, 1), 2.7), math.radians(65), math.radians(355)),
], False)
sketch15.addConstraint([
    Sketcher.Constraint("Coincident", 0, 1, 1, 1),
    Sketcher.Constraint("Coincident", 1, 2, 0, 2),
    Sketcher.Constraint("Coincident", 1, 3, -1, 1),
    Sketcher.Constraint("Radius", 1, Q("2.7 mm")),
    Sketcher.Constraint("Angle", 0, Q("-60 deg")),
    Sketcher.Constraint("DistanceX", -1, 1, 1, 2, Q("2.68788 mm")),
])
pocket8 = body.newObject("PartDesign::Pocket", "Pocket007")
pocket8.Profile = sketch15
pocket8.Type = "ThroughAll"
pocket8.Reversed = True

doc.recompute()
